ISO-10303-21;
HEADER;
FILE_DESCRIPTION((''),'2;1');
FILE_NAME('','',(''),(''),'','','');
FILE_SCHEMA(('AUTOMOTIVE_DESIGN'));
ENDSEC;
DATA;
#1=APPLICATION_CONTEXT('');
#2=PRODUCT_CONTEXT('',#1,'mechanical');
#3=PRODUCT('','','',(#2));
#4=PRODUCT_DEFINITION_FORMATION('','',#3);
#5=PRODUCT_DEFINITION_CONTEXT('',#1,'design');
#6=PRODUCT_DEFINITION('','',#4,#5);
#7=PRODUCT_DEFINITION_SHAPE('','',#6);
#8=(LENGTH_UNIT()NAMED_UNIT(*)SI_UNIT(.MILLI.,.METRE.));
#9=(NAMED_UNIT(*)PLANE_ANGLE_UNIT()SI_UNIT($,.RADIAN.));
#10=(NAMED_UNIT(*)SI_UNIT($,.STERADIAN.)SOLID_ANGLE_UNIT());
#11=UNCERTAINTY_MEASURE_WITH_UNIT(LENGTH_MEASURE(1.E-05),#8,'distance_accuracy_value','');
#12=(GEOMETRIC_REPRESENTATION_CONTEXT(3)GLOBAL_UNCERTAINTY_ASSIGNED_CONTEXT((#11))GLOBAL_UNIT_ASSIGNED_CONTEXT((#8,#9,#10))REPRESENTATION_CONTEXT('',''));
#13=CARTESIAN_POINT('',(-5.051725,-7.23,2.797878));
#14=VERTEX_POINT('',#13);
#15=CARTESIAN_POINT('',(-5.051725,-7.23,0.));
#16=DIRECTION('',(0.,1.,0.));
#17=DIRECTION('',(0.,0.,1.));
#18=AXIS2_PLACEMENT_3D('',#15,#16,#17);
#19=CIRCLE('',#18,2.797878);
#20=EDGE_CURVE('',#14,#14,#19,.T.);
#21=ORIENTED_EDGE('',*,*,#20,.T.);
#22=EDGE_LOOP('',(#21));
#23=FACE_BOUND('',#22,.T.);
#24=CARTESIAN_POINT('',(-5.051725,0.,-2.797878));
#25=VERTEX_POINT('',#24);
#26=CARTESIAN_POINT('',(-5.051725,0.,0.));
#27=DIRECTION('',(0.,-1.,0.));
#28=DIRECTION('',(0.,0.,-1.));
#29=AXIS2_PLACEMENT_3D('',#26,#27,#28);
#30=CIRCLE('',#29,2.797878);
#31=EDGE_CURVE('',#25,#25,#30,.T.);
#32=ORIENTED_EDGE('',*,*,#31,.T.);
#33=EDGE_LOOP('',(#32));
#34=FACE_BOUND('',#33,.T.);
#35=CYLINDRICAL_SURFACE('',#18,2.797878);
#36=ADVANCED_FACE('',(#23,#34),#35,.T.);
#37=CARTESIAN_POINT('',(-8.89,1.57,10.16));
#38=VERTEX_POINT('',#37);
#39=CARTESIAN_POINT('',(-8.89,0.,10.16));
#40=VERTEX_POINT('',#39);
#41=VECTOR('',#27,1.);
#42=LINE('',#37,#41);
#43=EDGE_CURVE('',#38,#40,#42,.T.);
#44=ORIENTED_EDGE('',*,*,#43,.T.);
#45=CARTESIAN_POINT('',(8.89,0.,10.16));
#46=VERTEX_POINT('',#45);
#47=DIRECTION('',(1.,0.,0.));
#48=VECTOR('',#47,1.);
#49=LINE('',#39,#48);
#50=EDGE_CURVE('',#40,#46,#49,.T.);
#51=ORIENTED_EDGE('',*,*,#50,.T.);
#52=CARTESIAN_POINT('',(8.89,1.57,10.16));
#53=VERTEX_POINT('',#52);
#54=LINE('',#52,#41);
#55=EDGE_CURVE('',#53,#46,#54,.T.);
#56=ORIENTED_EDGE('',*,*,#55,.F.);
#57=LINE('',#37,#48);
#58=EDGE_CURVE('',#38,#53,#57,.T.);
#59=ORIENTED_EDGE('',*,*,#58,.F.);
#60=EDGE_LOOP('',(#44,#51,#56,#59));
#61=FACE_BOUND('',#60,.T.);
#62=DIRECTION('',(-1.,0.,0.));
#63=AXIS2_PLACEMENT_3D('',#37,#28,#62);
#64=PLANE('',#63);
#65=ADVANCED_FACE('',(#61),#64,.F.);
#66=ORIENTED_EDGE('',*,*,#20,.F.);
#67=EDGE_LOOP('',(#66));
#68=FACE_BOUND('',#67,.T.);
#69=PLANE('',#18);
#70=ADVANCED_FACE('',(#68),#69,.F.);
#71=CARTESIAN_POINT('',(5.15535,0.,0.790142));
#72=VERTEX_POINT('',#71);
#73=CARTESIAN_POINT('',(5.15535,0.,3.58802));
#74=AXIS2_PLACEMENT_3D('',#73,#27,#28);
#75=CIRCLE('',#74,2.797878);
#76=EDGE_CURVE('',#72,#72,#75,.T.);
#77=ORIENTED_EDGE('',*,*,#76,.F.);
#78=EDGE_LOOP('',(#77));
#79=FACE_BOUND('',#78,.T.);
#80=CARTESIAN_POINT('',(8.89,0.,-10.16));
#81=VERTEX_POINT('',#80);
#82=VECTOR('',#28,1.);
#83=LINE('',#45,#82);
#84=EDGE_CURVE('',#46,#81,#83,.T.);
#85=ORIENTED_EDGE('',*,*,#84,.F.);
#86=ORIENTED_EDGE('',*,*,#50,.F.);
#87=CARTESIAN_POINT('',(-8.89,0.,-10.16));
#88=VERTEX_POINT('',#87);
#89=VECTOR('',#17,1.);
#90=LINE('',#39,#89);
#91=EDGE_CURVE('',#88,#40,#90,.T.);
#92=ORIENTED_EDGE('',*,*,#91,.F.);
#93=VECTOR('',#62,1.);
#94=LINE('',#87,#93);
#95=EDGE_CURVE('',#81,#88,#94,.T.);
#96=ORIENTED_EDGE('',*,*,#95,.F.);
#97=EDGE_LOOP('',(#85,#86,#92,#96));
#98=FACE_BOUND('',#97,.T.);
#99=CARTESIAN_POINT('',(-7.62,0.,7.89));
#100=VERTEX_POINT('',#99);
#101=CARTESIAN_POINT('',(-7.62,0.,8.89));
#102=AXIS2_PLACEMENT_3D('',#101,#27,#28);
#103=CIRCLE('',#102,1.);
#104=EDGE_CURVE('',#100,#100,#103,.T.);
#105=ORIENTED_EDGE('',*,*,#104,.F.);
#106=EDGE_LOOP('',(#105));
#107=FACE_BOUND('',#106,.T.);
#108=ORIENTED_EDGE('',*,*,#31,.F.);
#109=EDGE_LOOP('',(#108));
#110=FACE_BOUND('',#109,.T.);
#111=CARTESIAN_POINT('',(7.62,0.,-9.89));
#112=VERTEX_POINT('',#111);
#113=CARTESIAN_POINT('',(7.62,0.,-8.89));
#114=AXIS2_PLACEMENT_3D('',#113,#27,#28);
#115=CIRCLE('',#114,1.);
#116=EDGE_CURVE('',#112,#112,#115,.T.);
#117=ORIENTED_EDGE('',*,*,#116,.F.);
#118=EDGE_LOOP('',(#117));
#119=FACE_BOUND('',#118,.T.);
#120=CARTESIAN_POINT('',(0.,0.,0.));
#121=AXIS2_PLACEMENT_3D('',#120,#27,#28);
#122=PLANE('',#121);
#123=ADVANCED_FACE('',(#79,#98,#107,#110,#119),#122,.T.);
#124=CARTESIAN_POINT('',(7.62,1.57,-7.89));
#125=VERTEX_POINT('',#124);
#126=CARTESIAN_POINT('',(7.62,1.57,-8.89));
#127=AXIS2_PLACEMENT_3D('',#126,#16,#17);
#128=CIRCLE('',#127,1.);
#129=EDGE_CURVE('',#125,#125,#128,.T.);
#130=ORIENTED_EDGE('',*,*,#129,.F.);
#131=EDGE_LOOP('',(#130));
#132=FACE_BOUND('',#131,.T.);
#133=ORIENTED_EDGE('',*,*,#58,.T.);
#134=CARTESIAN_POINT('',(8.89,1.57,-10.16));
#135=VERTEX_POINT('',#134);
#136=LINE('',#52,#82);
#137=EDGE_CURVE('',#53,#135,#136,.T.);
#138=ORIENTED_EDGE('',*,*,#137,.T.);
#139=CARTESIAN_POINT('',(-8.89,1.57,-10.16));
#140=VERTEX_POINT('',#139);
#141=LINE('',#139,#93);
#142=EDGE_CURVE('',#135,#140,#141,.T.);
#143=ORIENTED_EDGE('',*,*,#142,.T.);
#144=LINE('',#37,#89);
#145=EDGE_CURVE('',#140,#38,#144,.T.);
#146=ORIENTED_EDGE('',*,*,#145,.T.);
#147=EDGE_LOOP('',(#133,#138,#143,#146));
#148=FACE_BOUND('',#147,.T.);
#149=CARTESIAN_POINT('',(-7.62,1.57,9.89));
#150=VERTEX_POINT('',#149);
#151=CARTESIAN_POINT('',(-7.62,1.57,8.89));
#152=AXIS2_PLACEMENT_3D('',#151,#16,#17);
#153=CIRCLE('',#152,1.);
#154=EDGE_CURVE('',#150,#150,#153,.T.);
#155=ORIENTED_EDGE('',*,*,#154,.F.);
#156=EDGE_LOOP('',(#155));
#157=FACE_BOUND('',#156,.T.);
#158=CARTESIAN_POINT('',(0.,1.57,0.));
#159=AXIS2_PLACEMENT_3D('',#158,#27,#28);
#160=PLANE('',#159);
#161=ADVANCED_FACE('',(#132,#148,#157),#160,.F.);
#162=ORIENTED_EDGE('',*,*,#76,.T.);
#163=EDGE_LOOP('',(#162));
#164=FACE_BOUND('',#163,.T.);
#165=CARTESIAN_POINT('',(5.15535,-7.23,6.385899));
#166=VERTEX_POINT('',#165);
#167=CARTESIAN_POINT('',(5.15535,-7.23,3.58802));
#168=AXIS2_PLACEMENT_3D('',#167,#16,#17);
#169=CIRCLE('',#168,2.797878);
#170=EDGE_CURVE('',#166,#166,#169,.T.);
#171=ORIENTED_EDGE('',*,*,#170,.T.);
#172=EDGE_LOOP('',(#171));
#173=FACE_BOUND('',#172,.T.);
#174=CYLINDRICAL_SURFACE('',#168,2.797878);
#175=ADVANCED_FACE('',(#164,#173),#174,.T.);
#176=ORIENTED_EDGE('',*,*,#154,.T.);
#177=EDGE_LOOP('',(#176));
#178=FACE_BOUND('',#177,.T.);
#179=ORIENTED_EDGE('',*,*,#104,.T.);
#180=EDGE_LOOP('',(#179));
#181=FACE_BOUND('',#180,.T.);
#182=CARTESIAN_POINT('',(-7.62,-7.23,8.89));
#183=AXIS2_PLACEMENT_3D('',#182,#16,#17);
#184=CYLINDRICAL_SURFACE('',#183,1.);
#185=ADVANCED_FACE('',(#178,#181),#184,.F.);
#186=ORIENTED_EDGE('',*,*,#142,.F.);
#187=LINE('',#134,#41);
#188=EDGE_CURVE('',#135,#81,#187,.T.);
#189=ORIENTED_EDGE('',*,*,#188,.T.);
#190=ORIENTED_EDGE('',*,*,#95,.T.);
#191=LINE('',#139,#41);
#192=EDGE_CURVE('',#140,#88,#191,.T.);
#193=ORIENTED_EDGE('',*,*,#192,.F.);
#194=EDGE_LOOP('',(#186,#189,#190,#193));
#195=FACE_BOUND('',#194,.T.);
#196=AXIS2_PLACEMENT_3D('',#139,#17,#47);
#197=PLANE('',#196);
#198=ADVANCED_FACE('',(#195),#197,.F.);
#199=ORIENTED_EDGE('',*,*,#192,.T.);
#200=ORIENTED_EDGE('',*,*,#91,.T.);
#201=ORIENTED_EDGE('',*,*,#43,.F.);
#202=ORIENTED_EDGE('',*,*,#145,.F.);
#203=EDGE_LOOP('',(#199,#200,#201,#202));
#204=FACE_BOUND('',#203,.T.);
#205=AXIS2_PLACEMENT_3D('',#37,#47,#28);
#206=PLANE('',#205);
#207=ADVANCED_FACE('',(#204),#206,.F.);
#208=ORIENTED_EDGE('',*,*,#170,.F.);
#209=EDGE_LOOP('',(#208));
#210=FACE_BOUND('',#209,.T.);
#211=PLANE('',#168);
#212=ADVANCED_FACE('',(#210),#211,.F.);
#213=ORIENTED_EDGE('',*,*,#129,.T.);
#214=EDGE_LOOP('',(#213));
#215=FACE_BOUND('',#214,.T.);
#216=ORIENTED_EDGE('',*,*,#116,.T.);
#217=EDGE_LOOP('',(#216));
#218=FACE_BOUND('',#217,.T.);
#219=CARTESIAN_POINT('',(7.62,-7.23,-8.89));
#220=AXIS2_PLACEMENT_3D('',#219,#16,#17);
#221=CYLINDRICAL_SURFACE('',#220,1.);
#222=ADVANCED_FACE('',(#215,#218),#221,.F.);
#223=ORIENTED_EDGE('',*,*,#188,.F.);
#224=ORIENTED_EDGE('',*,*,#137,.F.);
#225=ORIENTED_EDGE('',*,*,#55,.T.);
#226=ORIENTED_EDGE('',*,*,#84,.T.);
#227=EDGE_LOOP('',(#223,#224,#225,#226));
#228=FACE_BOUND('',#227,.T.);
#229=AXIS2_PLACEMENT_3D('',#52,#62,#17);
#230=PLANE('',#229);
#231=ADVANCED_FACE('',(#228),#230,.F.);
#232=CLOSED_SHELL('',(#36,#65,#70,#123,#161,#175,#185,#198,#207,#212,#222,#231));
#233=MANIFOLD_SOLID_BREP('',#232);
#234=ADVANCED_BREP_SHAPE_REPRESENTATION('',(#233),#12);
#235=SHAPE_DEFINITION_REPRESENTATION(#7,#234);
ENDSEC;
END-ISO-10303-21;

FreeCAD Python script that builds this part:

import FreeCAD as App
import Part
import Sketcher
from FreeCAD import Vector


def add_polygon(sketch, points):
    """Adds a closed chain of lines whose ends are joined by coincident constraints."""
    first, n = sketch.GeometryCount, len(points)
    for a, b in zip(points, points[1:] + points[:1]):
        sketch.addGeometry(Part.LineSegment(App.Vector(*a, 0), App.Vector(*b, 0)), False)
    for i in range(n):
        sketch.addConstraint(Sketcher.Constraint("Coincident", first + i, 2, first + (i + 1) % n, 1))

doc = App.newDocument("Part")
body = doc.addObject("PartDesign::Body", "Body")

# Sketch on XZ plane
sketch1 = body.newObject("Sketcher::SketchObject", "Sketch")
sketch1.AttachmentSupport = (doc.getObject("XZ_Plane"), [""])
sketch1.MapMode = "FlatFace"
add_polygon(sketch1, [(-9, -10), (-9, 10), (9, 10), (9, -10)])  # lines 0-3
sketch1.addConstraint([
    Sketcher.Constraint("Vertical", 0),
    Sketcher.Constraint("Horizontal", 1),
    Sketcher.Constraint("Vertical", 2),
    Sketcher.Constraint("Horizontal", 3),
    Sketcher.Constraint("Symmetric", 0, 2, 2, 2, -1, 1),
    Sketcher.Constraint("DistanceX", 1, 1, 1, 2, 17.78),
    Sketcher.Constraint("DistanceY", 0, 1, 0, 2, 20.32),
])
pad1 = body.newObject("PartDesign::Pad", "Pad")
pad1.Profile = sketch1
pad1.Length = 1.57
pad1.Reversed = True

# Sketch on XZ plane
sketch2 = body.newObject("Sketcher::SketchObject", "Sketch001")
sketch2.AttachmentSupport = (doc.getObject("XZ_Plane"), [""])
sketch2.MapMode = "FlatFace"
sketch2.AttachmentOffset = App.Placement(Vector(0, 0, -1.57), App.Rotation())
sketch2.addGeometry([
    Part.Circle(Vector(5.2, 3.6, 0), Vector(0, 0, 1), 2.8),
    Part.Circle(Vector(-5.1, 0, 0), Vector(0, 0, 1), 2.8),
], False)
sketch2.addConstraint([
    Sketcher.Constraint("Equal", 0, 1),
    Sketcher.Constraint("PointOnObject", 1, 3, -1),
    Sketcher.Constraint("Diameter", 0, 5.595757),
    Sketcher.Constraint("DistanceX", -1, 1, 0, 3, 5.15535),
    Sketcher.Constraint("DistanceY", -1, 1, 0, 3, 3.58802),
    Sketcher.Constraint("DistanceX", 1, 3, -1, 1, 5.051725),
])
pad2 = body.newObject("PartDesign::Pad", "Pad001")
pad2.Profile = sketch2
pad2.Length = 8.8

# Sketch on XZ plane
sketch3 = body.newObject("Sketcher::SketchObject", "Sketch002")
sketch3.AttachmentSupport = (doc.getObject("XZ_Plane"), [""])
sketch3.MapMode = "FlatFace"
sketch3.AttachmentOffset = App.Placement(Vector(0, 0, -1.57), App.Rotation())
sketch3.addGeometry([
    Part.Circle(Vector(-7.6, 8.9, 0), Vector(0, 0, 1), 1),
    Part.Circle(Vector(7.6, -8.9, 0), Vector(0, 0, 1), 1),
], False)
sketch3.addConstraint([
    Sketcher.Constraint("Equal", 0, 1),
    Sketcher.Constraint("Symmetric", 0, 3, 1, 3, -1, 1),
    Sketcher.Constraint("Diameter", 0, 2.0),
    Sketcher.Constraint("DistanceX", 0, 3, -1, 1, 7.62),
    Sketcher.Constraint("DistanceY", -1, 1, 0, 3, 8.89),
])
pocket1 = body.newObject("PartDesign::Pocket", "Pocket")
pocket1.Profile = sketch3
pocket1.Type = "ThroughAll"
pocket1.Reversed = True

doc.recompute()
